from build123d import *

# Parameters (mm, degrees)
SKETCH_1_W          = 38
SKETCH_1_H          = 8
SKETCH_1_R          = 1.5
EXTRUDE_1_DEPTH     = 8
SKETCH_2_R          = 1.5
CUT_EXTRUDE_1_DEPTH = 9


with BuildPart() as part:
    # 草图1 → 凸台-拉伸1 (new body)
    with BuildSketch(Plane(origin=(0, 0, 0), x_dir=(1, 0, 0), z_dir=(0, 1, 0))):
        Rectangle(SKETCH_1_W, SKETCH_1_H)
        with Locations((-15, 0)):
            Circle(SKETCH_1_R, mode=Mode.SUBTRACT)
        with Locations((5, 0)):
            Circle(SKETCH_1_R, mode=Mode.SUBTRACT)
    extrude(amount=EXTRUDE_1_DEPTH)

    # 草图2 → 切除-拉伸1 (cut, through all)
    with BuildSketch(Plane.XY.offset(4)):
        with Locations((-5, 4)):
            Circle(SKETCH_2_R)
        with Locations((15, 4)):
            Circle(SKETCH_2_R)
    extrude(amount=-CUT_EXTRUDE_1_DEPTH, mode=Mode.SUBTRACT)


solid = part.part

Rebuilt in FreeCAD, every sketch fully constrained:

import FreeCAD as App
import Part
import Sketcher
from FreeCAD import Vector
Q = App.Units.Quantity

doc = App.newDocument("Part")
params = doc.addObject("Spreadsheet::Sheet", "Params")
for row, (alias, value) in enumerate([
    ("sketch1_diameter", "3 mm"),
    ("sketch1_width", "38 mm"),
    ("sketch1_height", "8 mm"),
    ("pad1_length", "8 mm"),
    ("sketch2_diameter", "3 mm"),
], start=1):
    params.set(f"A{row}", alias)
    params.set(f"B{row}", "=" + value)
    params.setAlias(f"B{row}", alias)

body = doc.addObject("PartDesign::Body", "Body")

# Sketch on XZ plane
sketch1 = doc.addObject("Sketcher::SketchObject", "Sketch")
body.addObject(sketch1)
sketch1.AttachmentSupport = (doc.XZ_Plane, [""])
sketch1.MapMode = "FlatFace"
sketch1.addGeometry(Part.LineSegment(Vector(-19, -4, 0), Vector(-19, 4, 0)), False)
sketch1.addGeometry(Part.LineSegment(Vector(-19, 4, 0), Vector(19, 4, 0)), False)
sketch1.addGeometry(Part.LineSegment(Vector(19, 4, 0), Vector(19, -4, 0)), False)
sketch1.addGeometry(Part.LineSegment(Vector(19, -4, 0), Vector(-19, -4, 0)), False)
sketch1.addGeometry(Part.Circle(Vector(-15, 0, 0), Vector(0, 0, 1), 1.5), False)
sketch1.addGeometry(Part.Circle(Vector(5, 0, 0), Vector(0, 0, 1), 1.5), False)
sketch1.addConstraint(Sketcher.Constraint("Coincident", 0, 2, 1, 1))
sketch1.addConstraint(Sketcher.Constraint("Coincident", 1, 2, 2, 1))
sketch1.addConstraint(Sketcher.Constraint("Coincident", 2, 2, 3, 1))
sketch1.addConstraint(Sketcher.Constraint("Coincident", 3, 2, 0, 1))
sketch1.addConstraint(Sketcher.Constraint("Vertical", 0))
sketch1.addConstraint(Sketcher.Constraint("Horizontal", 1))
sketch1.addConstraint(Sketcher.Constraint("Vertical", 2))
sketch1.addConstraint(Sketcher.Constraint("Horizontal", 3))
sketch1.addConstraint(Sketcher.Constraint("Equal", 4, 5))
sketch1.addConstraint(Sketcher.Constraint("Symmetric", 0, 2, 2, 2, -1, 1))
sketch1.addConstraint(Sketcher.Constraint("PointOnObject", 4, 3, -1))
sketch1.addConstraint(Sketcher.Constraint("PointOnObject", 5, 3, -1))
sketch1.addConstraint(Sketcher.Constraint("Diameter", 4, Q("3 mm")))
sketch1.addConstraint(Sketcher.Constraint("DistanceX", 1, 1, 1, 2, Q("38 mm")))
sketch1.addConstraint(Sketcher.Constraint("DistanceY", 0, 1, 0, 2, Q("8 mm")))
sketch1.addConstraint(Sketcher.Constraint("DistanceX", 4, 3, -1, 1, Q("15 mm")))
sketch1.addConstraint(Sketcher.Constraint("DistanceX", -1, 1, 5, 3, Q("5 mm")))
sketch1.setExpression("Constraints[12]", "Params.sketch1_diameter")
sketch1.setExpression("Constraints[13]", "Params.sketch1_width")
sketch1.setExpression("Constraints[14]", "Params.sketch1_height")
pad1 = doc.addObject("PartDesign::Pad", "Pad")
body.addObject(pad1)
pad1.Profile = sketch1
pad1.setExpression("Length", "Params.pad1_length")
pad1.Reversed = True

# Sketch on XY plane
sketch2 = doc.addObject("Sketcher::SketchObject", "Sketch001")
body.addObject(sketch2)
sketch2.AttachmentSupport = (doc.XY_Plane, [""])
sketch2.MapMode = "FlatFace"
sketch2.AttachmentOffset = App.Placement(Vector(0, 0, 4), App.Rotation())
sketch2.addGeometry(Part.Circle(Vector(-5, 4, 0), Vector(0, 0, 1), 1.5), False)
sketch2.addGeometry(Part.Circle(Vector(15, 4, 0), Vector(0, 0, 1), 1.5), False)
sketch2.addConstraint(Sketcher.Constraint("Equal", 0, 1))
sketch2.addConstraint(Sketcher.Constraint("Horizontal", 0, 3, 1, 3))
sketch2.addConstraint(Sketcher.Constraint("Diameter", 0, Q("3 mm")))
sketch2.addConstraint(Sketcher.Constraint("DistanceX", 0, 3, -1, 1, Q("5 mm")))
sketch2.addConstraint(Sketcher.Constraint("DistanceY", -1, 1, 0, 3, Q("4 mm")))
sketch2.addConstraint(Sketcher.Constraint("DistanceX", -1, 1, 1, 3, Q("15 mm")))
sketch2.setExpression("Constraints[2]", "Params.sketch2_diameter")
pocket1 = doc.addObject("PartDesign::Pocket", "Pocket")
body.addObject(pocket1)
pocket1.Profile = sketch2
pocket1.Type = "ThroughAll"

doc.recompute()
